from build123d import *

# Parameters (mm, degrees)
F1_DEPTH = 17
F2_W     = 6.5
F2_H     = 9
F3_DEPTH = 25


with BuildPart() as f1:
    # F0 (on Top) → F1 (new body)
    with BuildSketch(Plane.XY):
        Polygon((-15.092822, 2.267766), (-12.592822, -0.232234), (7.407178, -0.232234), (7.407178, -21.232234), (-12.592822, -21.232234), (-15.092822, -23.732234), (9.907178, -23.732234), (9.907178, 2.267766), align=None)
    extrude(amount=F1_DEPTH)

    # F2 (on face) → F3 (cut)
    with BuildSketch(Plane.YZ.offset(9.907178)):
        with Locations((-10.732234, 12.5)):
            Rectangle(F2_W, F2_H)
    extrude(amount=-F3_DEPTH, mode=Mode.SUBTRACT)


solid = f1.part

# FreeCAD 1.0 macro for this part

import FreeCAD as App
import Part
import Sketcher

V = App.Vector
Q = App.Units.Quantity

doc = App.newDocument("Part")
body = doc.addObject("PartDesign::Body", "Body")

sketch1 = body.newObject("Sketcher::SketchObject", "Sketch")
sketch1.AttachmentSupport = (doc.getObject("XY_Plane"), [""])
sketch1.MapMode = "FlatFace"
sketch1.addGeometry([
    Part.LineSegment(V(-15.1, 2.3, 0), V(-12.6, -0.2, 0)),
    Part.LineSegment(V(-12.6, -0.2, 0), V(7.4, -0.2, 0)),
    Part.LineSegment(V(7.4, -0.2, 0), V(7.4, -21.2, 0)),
    Part.LineSegment(V(7.4, -21.2, 0), V(-12.6, -21.2, 0)),
    Part.LineSegment(V(-12.6, -21.2, 0), V(-15.1, -23.7, 0)),
    Part.LineSegment(V(-15.1, -23.7, 0), V(9.9, -23.7, 0)),
    Part.LineSegment(V(9.9, -23.7, 0), V(9.9, 2.3, 0)),
    Part.LineSegment(V(9.9, 2.3, 0), V(-15.1, 2.3, 0)),
], False)
sketch1.addConstraint([
    Sketcher.Constraint("Coincident", 0, 2, 1, 1),
    Sketcher.Constraint("Coincident", 1, 2, 2, 1),
    Sketcher.Constraint("Coincident", 2, 2, 3, 1),
    Sketcher.Constraint("Coincident", 3, 2, 4, 1),
    Sketcher.Constraint("Coincident", 4, 2, 5, 1),
    Sketcher.Constraint("Coincident", 5, 2, 6, 1),
    Sketcher.Constraint("Coincident", 6, 2, 7, 1),
    Sketcher.Constraint("Coincident", 7, 2, 0, 1),
    Sketcher.Constraint("Horizontal", 1),
    Sketcher.Constraint("Vertical", 2),
    Sketcher.Constraint("Horizontal", 3),
    Sketcher.Constraint("Horizontal", 5),
    Sketcher.Constraint("Vertical", 6),
    Sketcher.Constraint("Horizontal", 7),
    Sketcher.Constraint("Perpendicular", 0, 4),
    Sketcher.Constraint("Vertical", 0, 2, 3, 2),
    Sketcher.Constraint("Vertical", 4, 2, 7, 2),
    Sketcher.Constraint("Equal", 0, 4),
    Sketcher.Constraint("DistanceX", 1, 1, 1, 2, Q("20 mm")),
    Sketcher.Constraint("DistanceX", 5, 1, 5, 2, Q("25 mm")),
    Sketcher.Constraint("DistanceY", 2, 2, 2, 1, Q("21 mm")),
    Sketcher.Constraint("DistanceY", 6, 1, 6, 2, Q("26 mm")),
    Sketcher.Constraint("DistanceX", 0, 2, -1, 1, Q("12.592822 mm")),
    Sketcher.Constraint("DistanceY", 0, 2, -1, 1, Q("0.232234 mm")),
])
pad1 = body.newObject("PartDesign::Pad", "Pad")
pad1.Profile = sketch1
pad1.Length = 17

sketch2 = body.newObject("Sketcher::SketchObject", "Sketch001")
sketch2.AttachmentSupport = (doc.getObject("YZ_Plane"), [""])
sketch2.MapMode = "FlatFace"
sketch2.AttachmentOffset = App.Placement(V(0, 0, 9.907178), App.Rotation())
sketch2.addGeometry([
    Part.LineSegment(V(-14, 17, 0), V(-14, 8, 0)),
    Part.LineSegment(V(-14, 8, 0), V(-7, 8, 0)),
    Part.LineSegment(V(-7, 8, 0), V(-7, 17, 0)),
    Part.LineSegment(V(-7, 17, 0), V(-14, 17, 0)),
], False)
sketch2.addConstraint([
    Sketcher.Constraint("Coincident", 0, 2, 1, 1),
    Sketcher.Constraint("Coincident", 1, 2, 2, 1),
    Sketcher.Constraint("Coincident", 2, 2, 3, 1),
    Sketcher.Constraint("Coincident", 3, 2, 0, 1),
    Sketcher.Constraint("Vertical", 0),
    Sketcher.Constraint("Horizontal", 1),
    Sketcher.Constraint("Vertical", 2),
    Sketcher.Constraint("Horizontal", 3),
    Sketcher.Constraint("DistanceY", 0, 2, 0, 1, Q("9 mm")),
    Sketcher.Constraint("DistanceX", 1, 1, 1, 2, Q("6.5 mm")),
    Sketcher.Constraint("DistanceY", -1, 1, 0, 2, Q("8 mm")),
    Sketcher.Constraint("DistanceX", 0, 2, -1, 1, Q("13.982234 mm")),
])
pocket1 = body.newObject("PartDesign::Pocket", "Pocket")
pocket1.Profile = sketch2
pocket1.Length = 25

doc.recompute()
